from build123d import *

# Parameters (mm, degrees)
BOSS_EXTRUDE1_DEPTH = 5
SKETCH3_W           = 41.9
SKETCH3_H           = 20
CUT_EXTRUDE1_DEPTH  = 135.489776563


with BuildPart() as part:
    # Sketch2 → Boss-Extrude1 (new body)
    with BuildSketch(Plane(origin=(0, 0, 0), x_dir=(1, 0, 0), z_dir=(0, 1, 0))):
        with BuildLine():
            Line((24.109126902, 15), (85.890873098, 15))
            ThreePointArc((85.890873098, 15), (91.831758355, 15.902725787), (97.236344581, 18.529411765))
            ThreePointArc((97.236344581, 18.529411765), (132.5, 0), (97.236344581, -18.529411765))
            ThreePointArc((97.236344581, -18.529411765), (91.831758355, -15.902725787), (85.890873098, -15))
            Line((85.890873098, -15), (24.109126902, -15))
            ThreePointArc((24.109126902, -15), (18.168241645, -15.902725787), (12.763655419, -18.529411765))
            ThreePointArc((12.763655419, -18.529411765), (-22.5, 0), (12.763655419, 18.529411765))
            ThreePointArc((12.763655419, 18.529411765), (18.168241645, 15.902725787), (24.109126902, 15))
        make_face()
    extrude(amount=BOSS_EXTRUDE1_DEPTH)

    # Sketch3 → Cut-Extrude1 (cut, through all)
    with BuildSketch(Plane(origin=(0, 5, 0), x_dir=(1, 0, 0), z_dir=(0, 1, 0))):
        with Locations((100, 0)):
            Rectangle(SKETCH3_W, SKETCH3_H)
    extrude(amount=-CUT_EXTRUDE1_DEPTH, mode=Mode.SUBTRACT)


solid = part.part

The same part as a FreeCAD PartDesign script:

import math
import FreeCAD as App
import Part
import Sketcher
from FreeCAD import Vector
Q = App.Units.Quantity

doc = App.newDocument("Part")
params = doc.addObject("Spreadsheet::Sheet", "Params")
for row, (alias, value) in enumerate([
    ("sketch1_radius", "20 mm"),
    ("sketch1_radius2", "22.5 mm"),
    ("pad1_length", "5 mm"),
    ("sketch2_height", "20 mm"),
    ("sketch2_width", "41.9 mm"),
], start=1):
    params.set(f"A{row}", alias)
    params.set(f"B{row}", "=" + value)
    params.setAlias(f"B{row}", alias)

body = doc.addObject("PartDesign::Body", "Body")

sketch1 = doc.addObject("Sketcher::SketchObject", "Sketch")
body.addObject(sketch1)
sketch1.AttachmentSupport = (doc.XZ_Plane, [""])
sketch1.MapMode = "FlatFace"
sketch1.addGeometry([
    Part.LineSegment(Vector(86, -15, 0), Vector(24, -15, 0)),
    Part.ArcOfCircle(Part.Circle(Vector(24, -35, 0), Vector(0, 0, 1), 20), math.radians(90), math.radians(125)),
    Part.ArcOfCircle(Part.Circle(Vector(0, 0, 0), Vector(0, 0, 1), 22), math.radians(55), math.radians(305)),
    Part.ArcOfCircle(Part.Circle(Vector(24, 35, 0), Vector(0, 0, 1), 20), math.radians(-125), math.radians(-90)),
    Part.LineSegment(Vector(24, 15, 0), Vector(86, 15, 0)),
    Part.ArcOfCircle(Part.Circle(Vector(86, 35, 0), Vector(0, 0, 1), 20), math.radians(-90), math.radians(-55)),
    Part.ArcOfCircle(Part.Circle(Vector(110, 0, 0), Vector(0, 0, 1), 22), math.radians(-125), math.radians(125)),
    Part.ArcOfCircle(Part.Circle(Vector(86, -35, 0), Vector(0, 0, 1), 20), math.radians(55), math.radians(90)),
], False)
sketch1.addConstraint([
    Sketcher.Constraint("Tangent", 0, 2, 1, 1),
    Sketcher.Constraint("Tangent", 1, 2, 2, 2),
    Sketcher.Constraint("Tangent", 2, 1, 3, 1),
    Sketcher.Constraint("Tangent", 3, 2, 4, 1),
    Sketcher.Constraint("Tangent", 4, 2, 5, 1),
    Sketcher.Constraint("Tangent", 5, 2, 6, 2),
    Sketcher.Constraint("Tangent", 6, 1, 7, 1),
    Sketcher.Constraint("Tangent", 7, 2, 0, 1),
    Sketcher.Constraint("Horizontal", 0),
    Sketcher.Constraint("Horizontal", 4),
    Sketcher.Constraint("Coincident", 2, 3, -1, 1),
    Sketcher.Constraint("Equal", 1, 3),
    Sketcher.Constraint("Equal", 3, 5),
    Sketcher.Constraint("Equal", 2, 6),
    Sketcher.Constraint("Equal", 5, 7),
    Sketcher.Constraint("Symmetric", 5, 3, 7, 3, -1),
    Sketcher.Constraint("Radius", 1, Q("20 mm")),
    Sketcher.Constraint("Radius", 2, Q("22.5 mm")),
    Sketcher.Constraint("DistanceY", 1, 3, -1, 1, Q("35 mm")),
    Sketcher.Constraint("DistanceX", -1, 1, 6, 3, Q("110 mm")),
])
sketch1.setExpression("Constraints[16]", "Params.sketch1_radius")
sketch1.setExpression("Constraints[17]", "Params.sketch1_radius2")
pad1 = doc.addObject("PartDesign::Pad", "Pad")
body.addObject(pad1)
pad1.Profile = sketch1
pad1.setExpression("Length", "Params.pad1_length")
pad1.Reversed = True

sketch2 = doc.addObject("Sketcher::SketchObject", "Sketch001")
body.addObject(sketch2)
sketch2.AttachmentSupport = (doc.XZ_Plane, [""])
sketch2.MapMode = "FlatFace"
sketch2.AttachmentOffset = App.Placement(Vector(0, 0, -5), App.Rotation())
sketch2.addGeometry([
    Part.LineSegment(Vector(79, -10, 0), Vector(79, 10, 0)),
    Part.LineSegment(Vector(79, 10, 0), Vector(121, 10, 0)),
    Part.LineSegment(Vector(121, 10, 0), Vector(121, -10, 0)),
    Part.LineSegment(Vector(121, -10, 0), Vector(79, -10, 0)),
], False)
sketch2.addConstraint([
    Sketcher.Constraint("Coincident", 0, 2, 1, 1),
    Sketcher.Constraint("Coincident", 1, 2, 2, 1),
    Sketcher.Constraint("Coincident", 2, 2, 3, 1),
    Sketcher.Constraint("Coincident", 3, 2, 0, 1),
    Sketcher.Constraint("Vertical", 0),
    Sketcher.Constraint("Horizontal", 1),
    Sketcher.Constraint("Vertical", 2),
    Sketcher.Constraint("Horizontal", 3),
    Sketcher.Constraint("DistanceY", 0, 1, 0, 2, Q("20 mm")),
    Sketcher.Constraint("DistanceX", 1, 1, 1, 2, Q("41.9 mm")),
    Sketcher.Constraint("DistanceY", -1, 1, 0, 2, Q("10 mm")),
    Sketcher.Constraint("DistanceX", -1, 1, 0, 2, Q("79.05 mm")),
])
sketch2.setExpression("Constraints[8]", "Params.sketch2_height")
sketch2.setExpression("Constraints[9]", "Params.sketch2_width")
pocket1 = doc.addObject("PartDesign::Pocket", "Pocket")
body.addObject(pocket1)
pocket1.Profile = sketch2
pocket1.Type = "ThroughAll"
pocket1.Reversed = True

doc.recompute()
